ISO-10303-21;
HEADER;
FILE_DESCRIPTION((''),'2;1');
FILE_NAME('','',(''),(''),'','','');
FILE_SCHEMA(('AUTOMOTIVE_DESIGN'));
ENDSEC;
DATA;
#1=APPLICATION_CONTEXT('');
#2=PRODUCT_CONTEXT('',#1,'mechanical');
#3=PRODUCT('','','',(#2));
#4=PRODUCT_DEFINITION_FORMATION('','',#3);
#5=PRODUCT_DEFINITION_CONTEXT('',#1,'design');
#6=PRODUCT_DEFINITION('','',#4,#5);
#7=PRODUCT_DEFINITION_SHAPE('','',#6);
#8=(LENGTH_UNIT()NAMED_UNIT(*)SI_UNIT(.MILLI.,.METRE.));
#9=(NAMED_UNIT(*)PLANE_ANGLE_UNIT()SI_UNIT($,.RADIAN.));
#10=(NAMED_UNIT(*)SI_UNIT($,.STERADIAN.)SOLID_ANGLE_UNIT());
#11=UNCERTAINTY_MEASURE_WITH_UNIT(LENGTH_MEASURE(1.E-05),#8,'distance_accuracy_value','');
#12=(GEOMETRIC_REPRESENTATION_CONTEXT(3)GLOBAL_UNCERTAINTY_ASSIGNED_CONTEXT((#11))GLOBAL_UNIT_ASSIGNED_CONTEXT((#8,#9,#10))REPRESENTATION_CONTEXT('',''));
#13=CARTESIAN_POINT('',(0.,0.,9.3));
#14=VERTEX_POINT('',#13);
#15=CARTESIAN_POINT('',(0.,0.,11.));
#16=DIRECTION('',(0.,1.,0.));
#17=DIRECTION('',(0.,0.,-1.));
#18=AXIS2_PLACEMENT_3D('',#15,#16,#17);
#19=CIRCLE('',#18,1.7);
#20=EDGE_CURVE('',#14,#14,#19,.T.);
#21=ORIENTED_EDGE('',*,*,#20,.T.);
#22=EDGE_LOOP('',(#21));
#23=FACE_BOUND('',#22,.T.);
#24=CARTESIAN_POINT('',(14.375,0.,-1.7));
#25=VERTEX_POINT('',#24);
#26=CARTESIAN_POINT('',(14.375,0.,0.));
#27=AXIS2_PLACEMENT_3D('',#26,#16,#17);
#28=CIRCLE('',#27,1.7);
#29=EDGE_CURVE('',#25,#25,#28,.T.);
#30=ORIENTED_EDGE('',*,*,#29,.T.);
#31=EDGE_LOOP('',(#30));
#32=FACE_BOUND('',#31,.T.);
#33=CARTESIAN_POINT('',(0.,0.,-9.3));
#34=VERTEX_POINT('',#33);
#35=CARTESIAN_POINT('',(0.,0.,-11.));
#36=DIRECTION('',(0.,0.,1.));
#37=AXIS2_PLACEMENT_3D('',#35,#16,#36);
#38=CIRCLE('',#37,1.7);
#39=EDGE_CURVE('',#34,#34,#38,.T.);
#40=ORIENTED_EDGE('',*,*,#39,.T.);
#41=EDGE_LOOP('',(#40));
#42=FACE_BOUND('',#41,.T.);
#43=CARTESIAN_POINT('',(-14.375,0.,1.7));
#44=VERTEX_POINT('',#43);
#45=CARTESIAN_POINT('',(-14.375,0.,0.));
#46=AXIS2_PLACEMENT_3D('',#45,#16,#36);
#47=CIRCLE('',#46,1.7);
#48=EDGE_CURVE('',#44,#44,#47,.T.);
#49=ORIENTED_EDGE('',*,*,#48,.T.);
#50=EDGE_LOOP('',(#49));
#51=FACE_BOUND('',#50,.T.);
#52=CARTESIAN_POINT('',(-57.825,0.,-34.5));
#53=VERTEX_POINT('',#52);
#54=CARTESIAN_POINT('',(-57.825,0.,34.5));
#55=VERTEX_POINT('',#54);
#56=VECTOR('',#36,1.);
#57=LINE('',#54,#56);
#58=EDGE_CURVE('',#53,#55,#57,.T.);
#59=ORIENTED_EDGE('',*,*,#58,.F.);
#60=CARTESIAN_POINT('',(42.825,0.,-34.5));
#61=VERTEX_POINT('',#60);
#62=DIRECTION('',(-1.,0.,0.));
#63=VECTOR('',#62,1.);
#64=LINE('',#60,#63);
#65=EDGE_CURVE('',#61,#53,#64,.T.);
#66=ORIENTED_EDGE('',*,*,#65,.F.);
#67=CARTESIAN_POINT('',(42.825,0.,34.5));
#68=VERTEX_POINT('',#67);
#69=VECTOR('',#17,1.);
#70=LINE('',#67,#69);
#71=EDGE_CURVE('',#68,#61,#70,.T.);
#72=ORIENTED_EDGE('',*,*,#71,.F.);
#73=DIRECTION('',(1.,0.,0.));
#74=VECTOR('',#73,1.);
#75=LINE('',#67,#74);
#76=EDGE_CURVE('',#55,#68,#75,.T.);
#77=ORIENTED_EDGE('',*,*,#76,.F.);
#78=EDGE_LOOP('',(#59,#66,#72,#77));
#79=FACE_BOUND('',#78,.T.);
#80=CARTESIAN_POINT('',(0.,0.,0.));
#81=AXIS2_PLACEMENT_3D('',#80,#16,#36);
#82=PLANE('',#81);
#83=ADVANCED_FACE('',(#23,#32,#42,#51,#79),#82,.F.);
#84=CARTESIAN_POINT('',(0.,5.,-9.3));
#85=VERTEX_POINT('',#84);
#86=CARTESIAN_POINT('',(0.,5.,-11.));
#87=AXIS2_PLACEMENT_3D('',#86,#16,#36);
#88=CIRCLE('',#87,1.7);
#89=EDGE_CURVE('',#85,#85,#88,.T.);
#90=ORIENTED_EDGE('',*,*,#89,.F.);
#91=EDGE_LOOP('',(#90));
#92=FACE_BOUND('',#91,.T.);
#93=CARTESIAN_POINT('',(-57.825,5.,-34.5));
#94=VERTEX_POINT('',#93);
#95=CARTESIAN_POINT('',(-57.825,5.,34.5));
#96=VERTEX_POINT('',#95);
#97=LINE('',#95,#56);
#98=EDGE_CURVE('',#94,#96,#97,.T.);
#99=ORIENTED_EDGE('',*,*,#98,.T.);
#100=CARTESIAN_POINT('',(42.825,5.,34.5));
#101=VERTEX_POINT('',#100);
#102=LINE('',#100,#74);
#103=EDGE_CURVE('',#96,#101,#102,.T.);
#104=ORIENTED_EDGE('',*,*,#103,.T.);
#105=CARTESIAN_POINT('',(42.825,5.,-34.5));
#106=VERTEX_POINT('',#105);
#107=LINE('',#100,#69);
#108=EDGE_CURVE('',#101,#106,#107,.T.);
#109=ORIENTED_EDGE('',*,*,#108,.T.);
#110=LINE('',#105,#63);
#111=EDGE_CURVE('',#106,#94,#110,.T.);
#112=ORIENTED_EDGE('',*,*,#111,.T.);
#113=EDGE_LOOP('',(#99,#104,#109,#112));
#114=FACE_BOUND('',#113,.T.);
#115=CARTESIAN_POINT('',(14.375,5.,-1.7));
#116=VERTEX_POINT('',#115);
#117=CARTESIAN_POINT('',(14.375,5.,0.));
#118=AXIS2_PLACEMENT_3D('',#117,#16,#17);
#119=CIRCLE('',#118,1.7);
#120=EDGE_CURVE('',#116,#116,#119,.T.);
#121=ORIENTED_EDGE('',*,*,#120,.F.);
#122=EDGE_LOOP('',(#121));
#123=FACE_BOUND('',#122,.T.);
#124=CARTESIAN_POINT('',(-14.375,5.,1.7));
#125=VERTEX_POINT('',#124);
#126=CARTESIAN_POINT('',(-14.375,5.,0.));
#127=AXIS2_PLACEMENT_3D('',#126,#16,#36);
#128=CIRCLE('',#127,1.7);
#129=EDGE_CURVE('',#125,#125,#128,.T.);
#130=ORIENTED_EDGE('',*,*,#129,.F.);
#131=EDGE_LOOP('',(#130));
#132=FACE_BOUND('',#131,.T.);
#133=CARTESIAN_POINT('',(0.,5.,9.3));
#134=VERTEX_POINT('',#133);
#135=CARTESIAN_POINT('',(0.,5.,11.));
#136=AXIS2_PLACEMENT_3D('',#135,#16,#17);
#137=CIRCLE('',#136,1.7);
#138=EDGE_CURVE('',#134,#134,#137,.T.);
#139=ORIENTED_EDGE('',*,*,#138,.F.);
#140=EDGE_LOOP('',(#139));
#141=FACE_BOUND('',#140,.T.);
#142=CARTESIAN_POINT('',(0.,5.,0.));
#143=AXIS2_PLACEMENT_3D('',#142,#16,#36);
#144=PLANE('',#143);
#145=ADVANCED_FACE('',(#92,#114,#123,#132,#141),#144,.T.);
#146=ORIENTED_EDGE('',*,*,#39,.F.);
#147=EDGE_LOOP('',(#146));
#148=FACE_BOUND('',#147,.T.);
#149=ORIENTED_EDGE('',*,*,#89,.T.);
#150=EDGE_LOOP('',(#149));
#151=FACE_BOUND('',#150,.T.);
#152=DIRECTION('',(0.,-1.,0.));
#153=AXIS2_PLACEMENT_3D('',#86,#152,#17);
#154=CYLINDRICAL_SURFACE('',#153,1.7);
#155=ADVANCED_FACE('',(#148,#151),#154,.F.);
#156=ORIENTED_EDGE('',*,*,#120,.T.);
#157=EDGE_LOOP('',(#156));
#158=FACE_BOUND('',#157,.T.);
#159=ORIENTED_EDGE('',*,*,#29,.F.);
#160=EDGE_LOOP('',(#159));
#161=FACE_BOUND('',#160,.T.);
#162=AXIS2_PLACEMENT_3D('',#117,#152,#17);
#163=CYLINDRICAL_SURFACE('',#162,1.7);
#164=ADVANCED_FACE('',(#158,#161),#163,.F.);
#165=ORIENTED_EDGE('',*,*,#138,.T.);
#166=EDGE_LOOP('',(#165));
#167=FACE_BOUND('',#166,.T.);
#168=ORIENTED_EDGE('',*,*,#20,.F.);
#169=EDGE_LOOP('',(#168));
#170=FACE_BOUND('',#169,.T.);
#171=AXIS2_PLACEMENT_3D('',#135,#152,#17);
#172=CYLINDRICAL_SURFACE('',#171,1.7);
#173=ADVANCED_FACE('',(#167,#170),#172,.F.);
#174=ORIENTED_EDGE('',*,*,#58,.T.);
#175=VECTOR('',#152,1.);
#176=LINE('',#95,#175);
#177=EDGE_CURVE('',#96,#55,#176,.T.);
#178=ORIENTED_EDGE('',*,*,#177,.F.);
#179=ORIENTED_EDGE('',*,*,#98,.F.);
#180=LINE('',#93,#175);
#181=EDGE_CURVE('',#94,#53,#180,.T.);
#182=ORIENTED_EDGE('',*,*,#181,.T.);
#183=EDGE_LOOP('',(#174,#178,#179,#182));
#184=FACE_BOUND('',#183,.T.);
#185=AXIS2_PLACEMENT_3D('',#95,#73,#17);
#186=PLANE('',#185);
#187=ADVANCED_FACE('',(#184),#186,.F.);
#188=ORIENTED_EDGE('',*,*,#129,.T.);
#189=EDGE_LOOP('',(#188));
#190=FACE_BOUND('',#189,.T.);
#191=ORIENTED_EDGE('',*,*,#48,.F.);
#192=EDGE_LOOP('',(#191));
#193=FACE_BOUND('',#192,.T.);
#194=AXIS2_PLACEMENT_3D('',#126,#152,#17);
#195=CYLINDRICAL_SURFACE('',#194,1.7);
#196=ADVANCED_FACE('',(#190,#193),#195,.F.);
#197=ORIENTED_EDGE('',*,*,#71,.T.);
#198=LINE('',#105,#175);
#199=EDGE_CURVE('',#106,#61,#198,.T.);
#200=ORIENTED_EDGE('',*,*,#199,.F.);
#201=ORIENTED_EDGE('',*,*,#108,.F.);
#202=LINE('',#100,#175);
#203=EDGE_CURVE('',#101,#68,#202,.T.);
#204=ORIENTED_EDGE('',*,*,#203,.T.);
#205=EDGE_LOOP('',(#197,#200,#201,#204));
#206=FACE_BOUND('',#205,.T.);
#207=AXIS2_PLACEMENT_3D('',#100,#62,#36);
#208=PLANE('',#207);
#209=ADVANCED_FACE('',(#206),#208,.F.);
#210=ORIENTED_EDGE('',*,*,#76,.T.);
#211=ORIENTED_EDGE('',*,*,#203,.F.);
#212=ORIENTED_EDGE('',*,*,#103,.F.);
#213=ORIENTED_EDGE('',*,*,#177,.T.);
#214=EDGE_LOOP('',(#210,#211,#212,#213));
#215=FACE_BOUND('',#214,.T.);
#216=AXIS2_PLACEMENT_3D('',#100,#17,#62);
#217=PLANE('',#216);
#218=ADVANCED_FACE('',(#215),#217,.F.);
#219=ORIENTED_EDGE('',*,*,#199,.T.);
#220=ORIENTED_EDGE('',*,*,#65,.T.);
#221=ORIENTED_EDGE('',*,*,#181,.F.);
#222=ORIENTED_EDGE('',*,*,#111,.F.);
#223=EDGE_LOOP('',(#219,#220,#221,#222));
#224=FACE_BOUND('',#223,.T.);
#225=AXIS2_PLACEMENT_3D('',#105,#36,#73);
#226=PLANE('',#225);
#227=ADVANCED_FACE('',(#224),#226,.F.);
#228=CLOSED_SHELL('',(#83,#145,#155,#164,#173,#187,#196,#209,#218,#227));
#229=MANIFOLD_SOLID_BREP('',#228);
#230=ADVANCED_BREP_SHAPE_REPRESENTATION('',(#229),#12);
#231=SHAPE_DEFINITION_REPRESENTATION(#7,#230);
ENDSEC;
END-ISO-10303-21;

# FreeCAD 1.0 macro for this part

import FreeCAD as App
import Part
import Sketcher

V = App.Vector
Q = App.Units.Quantity


def add_polygon(sketch, points):
    """Adds a closed chain of lines whose ends are joined by coincident constraints."""
    first, n = sketch.GeometryCount, len(points)
    for a, b in zip(points, points[1:] + points[:1]):
        sketch.addGeometry(Part.LineSegment(App.Vector(*a, 0), App.Vector(*b, 0)), False)
    for i in range(n):
        sketch.addConstraint(Sketcher.Constraint("Coincident", first + i, 2, first + (i + 1) % n, 1))

doc = App.newDocument("Part")
body = doc.addObject("PartDesign::Body", "Body")

sketch1 = doc.addObject("Sketcher::SketchObject", "Sketch")
body.addObject(sketch1)
sketch1.AttachmentSupport = (doc.XZ_Plane, [""])
sketch1.MapMode = "FlatFace"
add_polygon(sketch1, [(-57.8, -34.5), (-57.8, 34.5), (42.8, 34.5), (42.8, -34.5)])
sketch1.addGeometry(Part.Circle(V(-14.4, 0, 0), V(0, 0, 1), 1.7), False)
sketch1.addGeometry(Part.Circle(V(0, 11, 0), V(0, 0, 1), 1.7), False)
sketch1.addGeometry(Part.Circle(V(14.4, 0, 0), V(0, 0, 1), 1.7), False)
sketch1.addGeometry(Part.Circle(V(0, -11, 0), V(0, 0, 1), 1.7), False)
sketch1.addConstraint([
    Sketcher.Constraint("Vertical", 0),
    Sketcher.Constraint("Horizontal", 1),
    Sketcher.Constraint("Vertical", 2),
    Sketcher.Constraint("Horizontal", 3),
    Sketcher.Constraint("Equal", 4, 5),
    Sketcher.Constraint("Equal", 5, 6),
    Sketcher.Constraint("Equal", 6, 7),
    Sketcher.Constraint("Symmetric", 4, 3, 6, 3, -1, 1),
    Sketcher.Constraint("Symmetric", 5, 3, 7, 3, -1, 1),
    Sketcher.Constraint("PointOnObject", 4, 3, -1),
    Sketcher.Constraint("PointOnObject", 5, 3, -2),
    Sketcher.Constraint("Diameter", 4, Q("3.4 mm")),
    Sketcher.Constraint("DistanceY", 0, 1, 0, 2, Q("69 mm")),
    Sketcher.Constraint("DistanceY", -1, 1, 5, 3, Q("11 mm")),
    Sketcher.Constraint("DistanceX", 1, 1, 1, 2, Q("100.65 mm")),
    Sketcher.Constraint("DistanceY", -1, 1, 0, 2, Q("34.5 mm")),
    Sketcher.Constraint("DistanceX", 0, 2, 6, 3, Q("72.2 mm")),
    Sketcher.Constraint("DistanceX", 4, 3, 1, 2, Q("57.2 mm")),
])
pad1 = doc.addObject("PartDesign::Pad", "Pad")
body.addObject(pad1)
pad1.Profile = sketch1
pad1.Length = 5
pad1.Reversed = True

doc.recompute()
